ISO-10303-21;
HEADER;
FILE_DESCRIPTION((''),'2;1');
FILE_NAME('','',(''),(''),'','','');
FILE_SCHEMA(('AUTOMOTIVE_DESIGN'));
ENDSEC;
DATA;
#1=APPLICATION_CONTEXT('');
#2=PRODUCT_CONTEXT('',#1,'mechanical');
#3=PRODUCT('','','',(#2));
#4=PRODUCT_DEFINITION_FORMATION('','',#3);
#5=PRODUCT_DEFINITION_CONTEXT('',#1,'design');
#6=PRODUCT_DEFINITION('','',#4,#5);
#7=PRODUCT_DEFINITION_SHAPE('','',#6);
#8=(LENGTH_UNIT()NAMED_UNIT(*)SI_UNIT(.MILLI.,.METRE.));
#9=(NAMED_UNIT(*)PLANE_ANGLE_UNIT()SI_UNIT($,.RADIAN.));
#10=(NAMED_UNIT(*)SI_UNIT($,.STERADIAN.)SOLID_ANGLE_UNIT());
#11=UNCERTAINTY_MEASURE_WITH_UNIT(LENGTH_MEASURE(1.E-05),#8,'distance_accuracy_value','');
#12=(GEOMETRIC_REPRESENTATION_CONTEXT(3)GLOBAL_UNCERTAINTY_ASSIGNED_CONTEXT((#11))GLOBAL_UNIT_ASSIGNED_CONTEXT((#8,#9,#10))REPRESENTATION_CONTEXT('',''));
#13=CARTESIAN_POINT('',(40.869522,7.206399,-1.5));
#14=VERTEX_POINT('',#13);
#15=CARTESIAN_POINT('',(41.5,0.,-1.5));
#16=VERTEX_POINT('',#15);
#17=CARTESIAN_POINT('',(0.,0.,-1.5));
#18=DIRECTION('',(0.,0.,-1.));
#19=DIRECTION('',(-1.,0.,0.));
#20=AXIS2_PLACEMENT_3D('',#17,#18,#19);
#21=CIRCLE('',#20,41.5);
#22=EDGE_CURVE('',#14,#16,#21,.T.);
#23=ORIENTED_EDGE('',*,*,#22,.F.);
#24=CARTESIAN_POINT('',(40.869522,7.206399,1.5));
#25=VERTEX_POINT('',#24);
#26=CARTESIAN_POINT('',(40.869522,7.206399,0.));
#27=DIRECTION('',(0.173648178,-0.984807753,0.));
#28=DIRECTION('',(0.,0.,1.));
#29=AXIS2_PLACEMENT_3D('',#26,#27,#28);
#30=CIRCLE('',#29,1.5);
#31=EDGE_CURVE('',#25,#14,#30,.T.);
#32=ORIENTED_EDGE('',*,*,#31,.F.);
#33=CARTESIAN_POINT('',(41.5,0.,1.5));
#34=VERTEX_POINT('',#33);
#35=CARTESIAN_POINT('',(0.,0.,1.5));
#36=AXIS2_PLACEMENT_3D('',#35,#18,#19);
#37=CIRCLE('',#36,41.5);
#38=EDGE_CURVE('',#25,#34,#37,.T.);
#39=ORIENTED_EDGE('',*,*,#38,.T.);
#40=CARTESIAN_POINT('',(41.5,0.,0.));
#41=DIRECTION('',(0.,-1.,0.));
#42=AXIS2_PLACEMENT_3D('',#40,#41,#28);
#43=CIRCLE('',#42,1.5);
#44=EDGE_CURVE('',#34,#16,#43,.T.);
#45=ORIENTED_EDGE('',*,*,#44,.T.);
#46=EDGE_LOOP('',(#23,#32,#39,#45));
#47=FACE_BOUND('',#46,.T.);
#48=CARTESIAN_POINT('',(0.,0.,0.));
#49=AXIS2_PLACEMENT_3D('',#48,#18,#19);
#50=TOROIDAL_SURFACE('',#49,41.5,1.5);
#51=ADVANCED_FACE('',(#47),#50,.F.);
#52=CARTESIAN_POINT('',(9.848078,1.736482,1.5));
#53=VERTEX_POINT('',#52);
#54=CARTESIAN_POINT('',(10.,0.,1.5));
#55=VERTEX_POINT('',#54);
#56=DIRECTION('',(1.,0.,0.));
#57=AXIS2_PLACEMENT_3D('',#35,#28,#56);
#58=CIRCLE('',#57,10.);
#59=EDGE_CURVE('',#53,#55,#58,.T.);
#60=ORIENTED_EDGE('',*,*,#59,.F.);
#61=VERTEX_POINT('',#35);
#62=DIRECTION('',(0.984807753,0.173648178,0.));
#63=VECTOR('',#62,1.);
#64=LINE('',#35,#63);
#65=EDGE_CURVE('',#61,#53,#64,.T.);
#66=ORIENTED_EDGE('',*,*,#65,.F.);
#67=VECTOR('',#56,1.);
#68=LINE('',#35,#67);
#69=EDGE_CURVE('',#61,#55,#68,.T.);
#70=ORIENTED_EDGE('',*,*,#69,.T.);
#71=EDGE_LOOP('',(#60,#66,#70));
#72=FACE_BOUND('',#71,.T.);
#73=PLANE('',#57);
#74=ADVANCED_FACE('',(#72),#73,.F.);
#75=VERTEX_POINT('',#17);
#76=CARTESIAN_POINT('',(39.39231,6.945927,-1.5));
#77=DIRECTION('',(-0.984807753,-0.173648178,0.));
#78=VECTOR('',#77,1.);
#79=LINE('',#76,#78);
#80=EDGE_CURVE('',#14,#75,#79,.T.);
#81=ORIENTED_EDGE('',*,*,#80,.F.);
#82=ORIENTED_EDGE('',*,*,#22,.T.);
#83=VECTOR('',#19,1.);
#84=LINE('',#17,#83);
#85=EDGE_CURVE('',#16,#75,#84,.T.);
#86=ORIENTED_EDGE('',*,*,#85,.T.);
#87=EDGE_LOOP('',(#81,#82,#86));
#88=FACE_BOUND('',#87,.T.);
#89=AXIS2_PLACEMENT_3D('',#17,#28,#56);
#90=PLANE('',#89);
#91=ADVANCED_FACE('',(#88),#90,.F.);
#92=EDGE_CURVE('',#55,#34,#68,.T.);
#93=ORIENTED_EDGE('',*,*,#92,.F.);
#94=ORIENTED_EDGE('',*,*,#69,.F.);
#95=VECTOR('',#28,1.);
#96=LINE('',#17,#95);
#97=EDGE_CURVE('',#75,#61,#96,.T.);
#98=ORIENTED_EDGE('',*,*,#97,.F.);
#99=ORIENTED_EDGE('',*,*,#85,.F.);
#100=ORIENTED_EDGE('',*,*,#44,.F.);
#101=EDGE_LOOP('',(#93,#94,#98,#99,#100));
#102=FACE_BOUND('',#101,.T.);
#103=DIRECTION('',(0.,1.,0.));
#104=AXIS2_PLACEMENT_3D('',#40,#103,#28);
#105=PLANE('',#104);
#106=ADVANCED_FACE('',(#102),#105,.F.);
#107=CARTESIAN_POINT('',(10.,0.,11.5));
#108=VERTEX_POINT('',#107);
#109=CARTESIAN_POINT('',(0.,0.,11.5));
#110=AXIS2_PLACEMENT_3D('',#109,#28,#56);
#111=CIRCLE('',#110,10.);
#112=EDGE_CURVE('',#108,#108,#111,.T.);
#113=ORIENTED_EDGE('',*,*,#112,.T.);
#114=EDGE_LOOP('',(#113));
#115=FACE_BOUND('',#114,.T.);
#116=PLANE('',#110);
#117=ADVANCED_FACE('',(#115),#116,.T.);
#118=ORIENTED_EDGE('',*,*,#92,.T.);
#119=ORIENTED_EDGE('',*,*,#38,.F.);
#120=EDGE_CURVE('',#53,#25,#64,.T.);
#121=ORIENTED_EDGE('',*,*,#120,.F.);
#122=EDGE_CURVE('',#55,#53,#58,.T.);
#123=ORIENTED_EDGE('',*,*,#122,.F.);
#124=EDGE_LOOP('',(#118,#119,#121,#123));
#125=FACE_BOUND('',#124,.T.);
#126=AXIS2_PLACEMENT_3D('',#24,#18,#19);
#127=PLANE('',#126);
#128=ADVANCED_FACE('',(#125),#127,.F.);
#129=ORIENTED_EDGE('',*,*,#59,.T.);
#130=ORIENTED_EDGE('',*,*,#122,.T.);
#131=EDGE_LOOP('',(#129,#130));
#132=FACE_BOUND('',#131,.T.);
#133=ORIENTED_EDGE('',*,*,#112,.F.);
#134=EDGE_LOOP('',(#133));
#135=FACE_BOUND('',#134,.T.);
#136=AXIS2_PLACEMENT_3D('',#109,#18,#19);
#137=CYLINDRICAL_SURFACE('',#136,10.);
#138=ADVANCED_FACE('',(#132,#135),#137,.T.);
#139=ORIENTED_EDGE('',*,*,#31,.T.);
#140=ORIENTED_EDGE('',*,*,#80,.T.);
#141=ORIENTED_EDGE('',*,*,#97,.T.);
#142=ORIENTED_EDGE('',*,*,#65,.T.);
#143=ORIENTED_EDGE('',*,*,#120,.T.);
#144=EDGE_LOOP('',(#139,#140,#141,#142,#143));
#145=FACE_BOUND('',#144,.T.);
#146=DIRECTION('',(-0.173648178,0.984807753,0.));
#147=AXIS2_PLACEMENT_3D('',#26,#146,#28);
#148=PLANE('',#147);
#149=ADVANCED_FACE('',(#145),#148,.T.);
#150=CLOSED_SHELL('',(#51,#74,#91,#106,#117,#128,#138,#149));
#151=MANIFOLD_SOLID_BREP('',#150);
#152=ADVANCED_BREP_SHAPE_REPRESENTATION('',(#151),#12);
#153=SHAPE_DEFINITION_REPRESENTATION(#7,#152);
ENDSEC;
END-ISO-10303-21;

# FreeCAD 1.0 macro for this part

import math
import FreeCAD as App
import Part
import Sketcher
from FreeCAD import Vector
Q = App.Units.Quantity

doc = App.newDocument("Part")
body = doc.addObject("PartDesign::Body", "Body")

# Sketch on XZ plane
sketch1 = body.newObject("Sketcher::SketchObject", "Sketch")
sketch1.AttachmentSupport = (doc.getObject("XZ_Plane"), [""])
sketch1.MapMode = "FlatFace"
sketch1.addGeometry([
    Part.ArcOfCircle(Part.Circle(Vector(41.5, 0, 0), Vector(0, 0, 1), 1.5), math.radians(90), math.radians(270)),
    Part.LineSegment(Vector(41.5, -1.5, 0), Vector(0, -1.5, 0)),
    Part.LineSegment(Vector(0, -1.5, 0), Vector(0, 1.5, 0)),
    Part.LineSegment(Vector(0, 1.5, 0), Vector(41.5, 1.5, 0)),
], False)
sketch1.addConstraint([
    Sketcher.Constraint("Tangent", 0, 2, 1, 1),
    Sketcher.Constraint("Coincident", 1, 2, 2, 1),
    Sketcher.Constraint("Coincident", 2, 2, 3, 1),
    Sketcher.Constraint("Tangent", 3, 2, 0, 1),
    Sketcher.Constraint("Horizontal", 1),
    Sketcher.Constraint("Vertical", 2),
    Sketcher.Constraint("Horizontal", 3),
    Sketcher.Constraint("Symmetric", 1, 2, 2, 2, -1, 1),
    Sketcher.Constraint("Radius", 0, Q("1.5 mm")),
    Sketcher.Constraint("DistanceX", 1, 2, 1, 1, Q("41.5 mm")),
])
revolution = body.newObject("PartDesign::Revolution", "Revolution")
revolution.Profile = sketch1
revolution.ReferenceAxis = (sketch1, ["V_Axis"])
revolution.Angle = 10

# Sketch on XY plane
sketch2 = body.newObject("Sketcher::SketchObject", "Sketch001")
sketch2.AttachmentSupport = (doc.getObject("XY_Plane"), [""])
sketch2.MapMode = "FlatFace"
sketch2.AttachmentOffset = App.Placement(Vector(0, 0, 1.5), App.Rotation())
sketch2.addGeometry(Part.Circle(Vector(0, 0, 0), Vector(0, 0, 1), 10), False)
sketch2.addConstraint([
    Sketcher.Constraint("Coincident", 0, 3, -1, 1),
    Sketcher.Constraint("Diameter", 0, Q("20 mm")),
])
pad1 = body.newObject("PartDesign::Pad", "Pad")
pad1.Profile = sketch2
pad1.Length = 10

doc.recompute()
